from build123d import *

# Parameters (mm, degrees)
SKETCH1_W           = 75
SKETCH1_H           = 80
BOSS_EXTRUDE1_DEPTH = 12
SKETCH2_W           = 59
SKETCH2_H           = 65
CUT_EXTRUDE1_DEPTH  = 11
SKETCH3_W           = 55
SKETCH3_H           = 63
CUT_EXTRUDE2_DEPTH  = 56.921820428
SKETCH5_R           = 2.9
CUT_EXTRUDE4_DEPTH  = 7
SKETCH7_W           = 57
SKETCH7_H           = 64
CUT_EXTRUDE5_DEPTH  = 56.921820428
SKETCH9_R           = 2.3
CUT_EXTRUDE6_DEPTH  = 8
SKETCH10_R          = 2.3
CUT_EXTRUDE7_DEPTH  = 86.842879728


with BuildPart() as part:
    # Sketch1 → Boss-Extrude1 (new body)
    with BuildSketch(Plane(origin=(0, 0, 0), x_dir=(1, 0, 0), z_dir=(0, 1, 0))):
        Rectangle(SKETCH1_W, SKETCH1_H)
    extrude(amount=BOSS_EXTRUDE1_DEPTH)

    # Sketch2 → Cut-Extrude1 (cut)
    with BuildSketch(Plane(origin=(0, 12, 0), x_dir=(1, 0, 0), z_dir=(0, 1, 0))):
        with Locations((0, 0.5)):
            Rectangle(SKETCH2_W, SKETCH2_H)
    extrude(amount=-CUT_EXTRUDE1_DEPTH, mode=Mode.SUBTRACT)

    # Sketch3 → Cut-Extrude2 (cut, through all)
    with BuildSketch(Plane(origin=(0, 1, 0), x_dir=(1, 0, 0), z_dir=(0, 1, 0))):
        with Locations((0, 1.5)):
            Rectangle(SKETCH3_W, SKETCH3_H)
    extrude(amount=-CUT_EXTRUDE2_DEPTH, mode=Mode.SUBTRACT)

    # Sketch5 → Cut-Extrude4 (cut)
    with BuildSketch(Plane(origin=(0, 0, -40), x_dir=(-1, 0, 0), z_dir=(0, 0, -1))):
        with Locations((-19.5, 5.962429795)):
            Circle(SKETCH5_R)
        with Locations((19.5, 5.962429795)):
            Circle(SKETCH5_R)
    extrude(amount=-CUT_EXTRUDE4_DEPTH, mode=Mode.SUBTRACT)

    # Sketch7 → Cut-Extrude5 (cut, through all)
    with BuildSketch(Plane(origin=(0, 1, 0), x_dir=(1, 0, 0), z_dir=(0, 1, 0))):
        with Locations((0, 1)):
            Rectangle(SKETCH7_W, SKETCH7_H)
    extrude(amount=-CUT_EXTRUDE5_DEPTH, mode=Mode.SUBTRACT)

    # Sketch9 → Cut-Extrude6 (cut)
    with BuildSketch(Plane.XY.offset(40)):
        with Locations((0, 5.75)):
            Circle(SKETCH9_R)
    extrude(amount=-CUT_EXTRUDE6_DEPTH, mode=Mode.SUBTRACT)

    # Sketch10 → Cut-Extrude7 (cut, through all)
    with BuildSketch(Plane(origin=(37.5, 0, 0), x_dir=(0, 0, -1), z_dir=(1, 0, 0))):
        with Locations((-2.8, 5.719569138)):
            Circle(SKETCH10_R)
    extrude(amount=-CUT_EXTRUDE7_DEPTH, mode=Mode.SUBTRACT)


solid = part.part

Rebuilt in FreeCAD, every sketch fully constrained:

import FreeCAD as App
import Part
import Sketcher

V = App.Vector
Q = App.Units.Quantity

doc = App.newDocument("Part")
params = doc.addObject("Spreadsheet::Sheet", "Params")
for row, (alias, value) in enumerate([
    ("sketch1_width", "75 mm"),
    ("sketch1_height", "80 mm"),
    ("pad1_length", "12 mm"),
    ("sketch2_width", "59 mm"),
    ("sketch2_height", "65 mm"),
    ("pocket1_length", "11 mm"),
    ("sketch3_width", "55 mm"),
    ("sketch3_height", "63 mm"),
    ("sketch4_diameter", "5.8 mm"),
    ("pocket3_length", "7 mm"),
    ("sketch5_width", "57 mm"),
    ("sketch5_height", "64 mm"),
    ("sketch6_diameter", "4.6 mm"),
    ("pocket5_length", "8 mm"),
    ("sketch7_diameter", "4.6 mm"),
], start=1):
    params.set(f"A{row}", alias)
    params.set(f"B{row}", "=" + value)
    params.setAlias(f"B{row}", alias)

body = doc.addObject("PartDesign::Body", "Body")

# Sketch on XZ plane
sketch1 = doc.addObject("Sketcher::SketchObject", "Sketch")
body.addObject(sketch1)
sketch1.AttachmentSupport = (doc.XZ_Plane, [""])
sketch1.MapMode = "FlatFace"
sketch1.addGeometry([
    Part.LineSegment(V(-38, -40, 0), V(-38, 40, 0)),
    Part.LineSegment(V(-38, 40, 0), V(38, 40, 0)),
    Part.LineSegment(V(38, 40, 0), V(38, -40, 0)),
    Part.LineSegment(V(38, -40, 0), V(-38, -40, 0)),
], False)
sketch1.addConstraint([
    Sketcher.Constraint("Coincident", 0, 2, 1, 1),
    Sketcher.Constraint("Coincident", 1, 2, 2, 1),
    Sketcher.Constraint("Coincident", 2, 2, 3, 1),
    Sketcher.Constraint("Coincident", 3, 2, 0, 1),
    Sketcher.Constraint("Vertical", 0),
    Sketcher.Constraint("Horizontal", 1),
    Sketcher.Constraint("Vertical", 2),
    Sketcher.Constraint("Horizontal", 3),
    Sketcher.Constraint("Symmetric", 0, 2, 2, 2, -1, 1),
    Sketcher.Constraint("DistanceX", 1, 1, 1, 2, Q("75 mm")),
    Sketcher.Constraint("DistanceY", 0, 1, 0, 2, Q("80 mm")),
])
sketch1.setExpression("Constraints[9]", "Params.sketch1_width")
sketch1.setExpression("Constraints[10]", "Params.sketch1_height")
pad1 = doc.addObject("PartDesign::Pad", "Pad")
body.addObject(pad1)
pad1.Profile = sketch1
pad1.setExpression("Length", "Params.pad1_length")
pad1.Reversed = True

# Sketch on XZ plane
sketch2 = doc.addObject("Sketcher::SketchObject", "Sketch001")
body.addObject(sketch2)
sketch2.AttachmentSupport = (doc.XZ_Plane, [""])
sketch2.MapMode = "FlatFace"
sketch2.AttachmentOffset = App.Placement(V(0, 0, -12), App.Rotation())
sketch2.addGeometry([
    Part.LineSegment(V(-30, -33, 0), V(-30, 32, 0)),
    Part.LineSegment(V(-30, 32, 0), V(30, 32, 0)),
    Part.LineSegment(V(30, 32, 0), V(30, -33, 0)),
    Part.LineSegment(V(30, -33, 0), V(-30, -33, 0)),
], False)
sketch2.addConstraint([
    Sketcher.Constraint("Coincident", 0, 2, 1, 1),
    Sketcher.Constraint("Coincident", 1, 2, 2, 1),
    Sketcher.Constraint("Coincident", 2, 2, 3, 1),
    Sketcher.Constraint("Coincident", 3, 2, 0, 1),
    Sketcher.Constraint("Vertical", 0),
    Sketcher.Constraint("Horizontal", 1),
    Sketcher.Constraint("Vertical", 2),
    Sketcher.Constraint("Horizontal", 3),
    Sketcher.Constraint("DistanceX", 1, 1, 1, 2, Q("59 mm")),
    Sketcher.Constraint("DistanceY", 0, 1, 0, 2, Q("65 mm")),
    Sketcher.Constraint("DistanceY", -1, 1, 0, 2, Q("32 mm")),
    Sketcher.Constraint("DistanceX", 0, 2, -1, 1, Q("29.5 mm")),
])
sketch2.setExpression("Constraints[8]", "Params.sketch2_width")
sketch2.setExpression("Constraints[9]", "Params.sketch2_height")
pocket1 = doc.addObject("PartDesign::Pocket", "Pocket")
body.addObject(pocket1)
pocket1.Profile = sketch2
pocket1.setExpression("Length", "Params.pocket1_length")
pocket1.Reversed = True

# Sketch on XZ plane
sketch3 = doc.addObject("Sketcher::SketchObject", "Sketch002")
body.addObject(sketch3)
sketch3.AttachmentSupport = (doc.XZ_Plane, [""])
sketch3.MapMode = "FlatFace"
sketch3.AttachmentOffset = App.Placement(V(0, 0, -1), App.Rotation())
sketch3.addGeometry([
    Part.LineSegment(V(-28, -33, 0), V(-28, 30, 0)),
    Part.LineSegment(V(-28, 30, 0), V(28, 30, 0)),
    Part.LineSegment(V(28, 30, 0), V(28, -33, 0)),
    Part.LineSegment(V(28, -33, 0), V(-28, -33, 0)),
], False)
sketch3.addConstraint([
    Sketcher.Constraint("Coincident", 0, 2, 1, 1),
    Sketcher.Constraint("Coincident", 1, 2, 2, 1),
    Sketcher.Constraint("Coincident", 2, 2, 3, 1),
    Sketcher.Constraint("Coincident", 3, 2, 0, 1),
    Sketcher.Constraint("Vertical", 0),
    Sketcher.Constraint("Horizontal", 1),
    Sketcher.Constraint("Vertical", 2),
    Sketcher.Constraint("Horizontal", 3),
    Sketcher.Constraint("DistanceX", 1, 1, 1, 2, Q("55 mm")),
    Sketcher.Constraint("DistanceY", 0, 1, 0, 2, Q("63 mm")),
    Sketcher.Constraint("DistanceY", -1, 1, 0, 2, Q("30 mm")),
    Sketcher.Constraint("DistanceX", 0, 2, -1, 1, Q("27.5 mm")),
])
sketch3.setExpression("Constraints[8]", "Params.sketch3_width")
sketch3.setExpression("Constraints[9]", "Params.sketch3_height")
pocket2 = doc.addObject("PartDesign::Pocket", "Pocket001")
body.addObject(pocket2)
pocket2.Profile = sketch3
pocket2.Type = "ThroughAll"
pocket2.Reversed = True

# Sketch on XY plane
sketch4 = doc.addObject("Sketcher::SketchObject", "Sketch003")
body.addObject(sketch4)
sketch4.AttachmentSupport = (doc.XY_Plane, [""])
sketch4.MapMode = "FlatFace"
sketch4.AttachmentOffset = App.Placement(V(0, 0, -40), App.Rotation())
sketch4.addGeometry([
    Part.Circle(V(19.5, 6, 0), V(0, 0, 1), 2.9),
    Part.Circle(V(-19.5, 6, 0), V(0, 0, 1), 2.9),
], False)
sketch4.addConstraint([
    Sketcher.Constraint("Equal", 0, 1),
    Sketcher.Constraint("Symmetric", 0, 3, 1, 3, -2),
    Sketcher.Constraint("Diameter", 0, Q("5.8 mm")),
    Sketcher.Constraint("DistanceX", 1, 3, 0, 3, Q("39 mm")),
    Sketcher.Constraint("DistanceY", -1, 1, 0, 3, Q("5.96243 mm")),
])
sketch4.setExpression("Constraints[2]", "Params.sketch4_diameter")
pocket3 = doc.addObject("PartDesign::Pocket", "Pocket002")
body.addObject(pocket3)
pocket3.Profile = sketch4
pocket3.setExpression("Length", "Params.pocket3_length")
pocket3.Reversed = True

# Sketch on XZ plane
sketch5 = doc.addObject("Sketcher::SketchObject", "Sketch004")
body.addObject(sketch5)
sketch5.AttachmentSupport = (doc.XZ_Plane, [""])
sketch5.MapMode = "FlatFace"
sketch5.AttachmentOffset = App.Placement(V(0, 0, -1), App.Rotation())
sketch5.addGeometry([
    Part.LineSegment(V(-28, -33, 0), V(-28, 31, 0)),
    Part.LineSegment(V(-28, 31, 0), V(28, 31, 0)),
    Part.LineSegment(V(28, 31, 0), V(28, -33, 0)),
    Part.LineSegment(V(28, -33, 0), V(-28, -33, 0)),
], False)
sketch5.addConstraint([
    Sketcher.Constraint("Coincident", 0, 2, 1, 1),
    Sketcher.Constraint("Coincident", 1, 2, 2, 1),
    Sketcher.Constraint("Coincident", 2, 2, 3, 1),
    Sketcher.Constraint("Coincident", 3, 2, 0, 1),
    Sketcher.Constraint("Vertical", 0),
    Sketcher.Constraint("Horizontal", 1),
    Sketcher.Constraint("Vertical", 2),
    Sketcher.Constraint("Horizontal", 3),
    Sketcher.Constraint("DistanceX", 1, 1, 1, 2, Q("57 mm")),
    Sketcher.Constraint("DistanceY", 0, 1, 0, 2, Q("64 mm")),
    Sketcher.Constraint("DistanceY", -1, 1, 0, 2, Q("31 mm")),
    Sketcher.Constraint("DistanceX", 0, 2, -1, 1, Q("28.5 mm")),
])
sketch5.setExpression("Constraints[8]", "Params.sketch5_width")
sketch5.setExpression("Constraints[9]", "Params.sketch5_height")
pocket4 = doc.addObject("PartDesign::Pocket", "Pocket003")
body.addObject(pocket4)
pocket4.Profile = sketch5
pocket4.Type = "ThroughAll"
pocket4.Reversed = True

# Sketch on XY plane
sketch6 = doc.addObject("Sketcher::SketchObject", "Sketch005")
body.addObject(sketch6)
sketch6.AttachmentSupport = (doc.XY_Plane, [""])
sketch6.MapMode = "FlatFace"
sketch6.AttachmentOffset = App.Placement(V(0, 0, 40), App.Rotation())
sketch6.addGeometry(Part.Circle(V(0, 5.8, 0), V(0, 0, 1), 2.3), False)
sketch6.addConstraint([
    Sketcher.Constraint("PointOnObject", 0, 3, -2),
    Sketcher.Constraint("Diameter", 0, Q("4.6 mm")),
    Sketcher.Constraint("DistanceY", -1, 1, 0, 3, Q("5.75 mm")),
])
sketch6.setExpression("Constraints[1]", "Params.sketch6_diameter")
pocket5 = doc.addObject("PartDesign::Pocket", "Pocket004")
body.addObject(pocket5)
pocket5.Profile = sketch6
pocket5.setExpression("Length", "Params.pocket5_length")

# Sketch on YZ plane
sketch7 = doc.addObject("Sketcher::SketchObject", "Sketch006")
body.addObject(sketch7)
sketch7.AttachmentSupport = (doc.YZ_Plane, [""])
sketch7.MapMode = "FlatFace"
sketch7.AttachmentOffset = App.Placement(V(0, 0, 37.5), App.Rotation())
sketch7.addGeometry(Part.Circle(V(5.7, 2.8, 0), V(0, 0, 1), 2.3), False)
sketch7.addConstraint([
    Sketcher.Constraint("Diameter", 0, Q("4.6 mm")),
    Sketcher.Constraint("DistanceY", -1, 1, 0, 3, Q("2.8 mm")),
    Sketcher.Constraint("DistanceX", -1, 1, 0, 3, Q("5.719569 mm")),
])
sketch7.setExpression("Constraints[0]", "Params.sketch7_diameter")
pocket6 = doc.addObject("PartDesign::Pocket", "Pocket005")
body.addObject(pocket6)
pocket6.Profile = sketch7
pocket6.Type = "ThroughAll"

doc.recompute()
